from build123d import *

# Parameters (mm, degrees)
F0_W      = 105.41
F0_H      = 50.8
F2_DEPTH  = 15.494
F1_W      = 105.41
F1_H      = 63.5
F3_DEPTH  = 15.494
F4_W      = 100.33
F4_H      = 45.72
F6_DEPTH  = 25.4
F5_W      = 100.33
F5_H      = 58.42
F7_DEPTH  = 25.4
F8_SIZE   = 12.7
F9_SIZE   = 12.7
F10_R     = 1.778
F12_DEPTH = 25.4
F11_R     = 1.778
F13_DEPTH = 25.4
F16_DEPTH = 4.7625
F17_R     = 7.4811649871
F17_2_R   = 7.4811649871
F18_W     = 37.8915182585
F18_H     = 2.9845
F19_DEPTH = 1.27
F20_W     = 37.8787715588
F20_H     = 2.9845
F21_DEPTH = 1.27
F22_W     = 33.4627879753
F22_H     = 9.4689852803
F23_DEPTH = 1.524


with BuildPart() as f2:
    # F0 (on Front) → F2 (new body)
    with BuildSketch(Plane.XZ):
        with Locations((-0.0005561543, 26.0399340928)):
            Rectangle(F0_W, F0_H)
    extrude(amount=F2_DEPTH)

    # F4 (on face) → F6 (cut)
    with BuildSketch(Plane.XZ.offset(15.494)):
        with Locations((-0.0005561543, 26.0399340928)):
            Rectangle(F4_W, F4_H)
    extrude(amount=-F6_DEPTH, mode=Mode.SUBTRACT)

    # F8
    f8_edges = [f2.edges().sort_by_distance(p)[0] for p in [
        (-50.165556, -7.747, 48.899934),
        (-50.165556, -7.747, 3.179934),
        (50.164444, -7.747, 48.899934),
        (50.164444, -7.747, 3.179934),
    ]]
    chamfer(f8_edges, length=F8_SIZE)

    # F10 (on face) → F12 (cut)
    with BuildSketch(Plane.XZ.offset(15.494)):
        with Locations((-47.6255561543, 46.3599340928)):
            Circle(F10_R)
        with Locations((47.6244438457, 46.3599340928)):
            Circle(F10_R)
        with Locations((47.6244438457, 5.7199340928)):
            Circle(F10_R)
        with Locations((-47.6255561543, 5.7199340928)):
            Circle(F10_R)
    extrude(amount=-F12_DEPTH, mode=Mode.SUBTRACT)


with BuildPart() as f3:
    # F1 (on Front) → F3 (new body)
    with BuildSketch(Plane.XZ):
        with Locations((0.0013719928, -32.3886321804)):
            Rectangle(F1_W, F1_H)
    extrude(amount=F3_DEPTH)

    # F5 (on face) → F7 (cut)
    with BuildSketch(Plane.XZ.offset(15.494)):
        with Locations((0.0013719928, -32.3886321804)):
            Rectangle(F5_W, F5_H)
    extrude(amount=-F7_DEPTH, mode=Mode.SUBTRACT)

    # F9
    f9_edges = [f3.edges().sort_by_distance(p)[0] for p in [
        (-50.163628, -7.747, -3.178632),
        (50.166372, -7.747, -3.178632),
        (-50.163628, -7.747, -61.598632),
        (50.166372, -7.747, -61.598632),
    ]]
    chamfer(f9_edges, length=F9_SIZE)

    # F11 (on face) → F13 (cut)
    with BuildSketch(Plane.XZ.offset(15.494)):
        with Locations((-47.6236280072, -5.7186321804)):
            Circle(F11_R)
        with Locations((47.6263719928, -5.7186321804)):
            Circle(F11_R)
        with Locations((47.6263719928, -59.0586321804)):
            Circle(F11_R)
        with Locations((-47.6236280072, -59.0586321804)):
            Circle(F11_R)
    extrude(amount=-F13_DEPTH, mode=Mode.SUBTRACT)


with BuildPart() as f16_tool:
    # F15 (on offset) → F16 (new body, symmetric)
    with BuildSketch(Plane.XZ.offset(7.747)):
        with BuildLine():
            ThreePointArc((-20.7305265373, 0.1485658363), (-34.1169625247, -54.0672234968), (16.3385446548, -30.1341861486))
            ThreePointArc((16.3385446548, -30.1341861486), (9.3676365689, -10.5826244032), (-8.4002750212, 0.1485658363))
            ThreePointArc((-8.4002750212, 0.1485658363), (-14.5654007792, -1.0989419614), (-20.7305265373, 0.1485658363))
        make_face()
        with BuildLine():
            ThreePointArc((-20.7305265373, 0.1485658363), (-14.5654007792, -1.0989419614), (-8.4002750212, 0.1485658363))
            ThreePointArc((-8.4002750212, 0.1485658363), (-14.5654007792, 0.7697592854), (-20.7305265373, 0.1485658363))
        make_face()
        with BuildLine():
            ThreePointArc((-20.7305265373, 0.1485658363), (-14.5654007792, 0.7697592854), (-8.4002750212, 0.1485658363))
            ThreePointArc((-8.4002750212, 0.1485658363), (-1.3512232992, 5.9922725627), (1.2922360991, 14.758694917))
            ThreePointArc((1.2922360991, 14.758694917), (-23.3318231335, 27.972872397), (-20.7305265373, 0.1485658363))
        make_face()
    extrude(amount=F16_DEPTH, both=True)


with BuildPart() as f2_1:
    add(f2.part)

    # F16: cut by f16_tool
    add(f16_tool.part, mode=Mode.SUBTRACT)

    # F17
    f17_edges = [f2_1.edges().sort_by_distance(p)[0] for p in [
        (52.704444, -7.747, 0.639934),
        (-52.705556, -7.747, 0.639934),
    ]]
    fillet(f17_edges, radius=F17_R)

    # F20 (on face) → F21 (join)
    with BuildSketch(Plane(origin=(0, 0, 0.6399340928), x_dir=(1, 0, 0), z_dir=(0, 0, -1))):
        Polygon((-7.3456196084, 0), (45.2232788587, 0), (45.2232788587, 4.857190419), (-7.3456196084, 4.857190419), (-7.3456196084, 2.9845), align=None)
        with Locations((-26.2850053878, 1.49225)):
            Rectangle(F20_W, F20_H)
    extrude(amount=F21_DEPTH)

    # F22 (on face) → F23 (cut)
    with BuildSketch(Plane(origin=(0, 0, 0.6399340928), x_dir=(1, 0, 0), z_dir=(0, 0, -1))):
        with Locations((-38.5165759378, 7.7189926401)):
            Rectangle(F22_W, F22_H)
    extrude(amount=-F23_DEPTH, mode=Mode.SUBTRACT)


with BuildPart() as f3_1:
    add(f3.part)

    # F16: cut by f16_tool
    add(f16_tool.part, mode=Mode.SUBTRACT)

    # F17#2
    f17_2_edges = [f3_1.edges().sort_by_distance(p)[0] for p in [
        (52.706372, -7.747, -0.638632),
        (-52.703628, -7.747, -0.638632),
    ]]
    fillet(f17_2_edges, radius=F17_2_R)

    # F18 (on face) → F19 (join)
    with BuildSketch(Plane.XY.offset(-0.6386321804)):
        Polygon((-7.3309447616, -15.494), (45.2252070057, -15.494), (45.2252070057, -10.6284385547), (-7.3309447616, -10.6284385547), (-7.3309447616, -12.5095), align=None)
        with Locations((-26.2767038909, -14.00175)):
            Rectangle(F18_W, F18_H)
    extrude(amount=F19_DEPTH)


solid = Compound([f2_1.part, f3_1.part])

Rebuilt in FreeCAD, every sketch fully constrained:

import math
import FreeCAD as App
import Part
import Sketcher

V = App.Vector
Q = App.Units.Quantity


def edges_at(feature, points):
    """Names of the edges that pass closest to the given points."""
    edges = feature.Shape.Edges
    near = lambda p: min(range(len(edges)), key=lambda i: edges[i].distToShape(Part.Vertex(*p))[0])
    return sorted({f"Edge{near(p) + 1}" for p in points})


def add_polygon(sketch, points):
    """Adds a closed chain of lines whose ends are joined by coincident constraints."""
    first, n = sketch.GeometryCount, len(points)
    for a, b in zip(points, points[1:] + points[:1]):
        sketch.addGeometry(Part.LineSegment(App.Vector(*a, 0), App.Vector(*b, 0)), False)
    for i in range(n):
        sketch.addConstraint(Sketcher.Constraint("Coincident", first + i, 2, first + (i + 1) % n, 1))

doc = App.newDocument("Part")
params = doc.addObject("Spreadsheet::Sheet", "Params")
for row, (alias, value) in enumerate([
    ("sketch1_height", "2 in"),
    ("sketch1_width", "4.15 in"),
    ("pad1_length", "0.61 in"),
    ("sketch2_height", "1.8 in"),
    ("sketch2_width", "3.95 in"),
    ("pocket1_length", "1 in"),
    ("chamfer_size", "0.5 in"),
    ("sketch3_diameter", "0.14 in"),
    ("pocket2_length", "1 in"),
    ("sketch4_height", "2.5 in"),
    ("sketch4_width", "4.15 in"),
    ("pad2_length", "0.61 in"),
    ("sketch5_height", "2.3 in"),
    ("sketch5_width", "3.95 in"),
    ("pocket3_length", "1 in"),
    ("chamfer2_size", "0.5 in"),
    ("sketch6_diameter", "0.14 in"),
    ("pocket4_length", "1 in"),
    ("pad3_length", "0.375 in"),
    ("fillet_radius", "7.481165 mm"),
    ("pad4_length", "0.05 in"),
    ("pocket5_length", "0.06 in"),
    ("fillet2_radius", "7.481165 mm"),
    ("pad5_length", "0.05 in"),
], start=1):
    params.set(f"A{row}", alias)
    params.set(f"B{row}", "=" + value)
    params.setAlias(f"B{row}", alias)

body = doc.addObject("PartDesign::Body", "Body")

# Sketch on XZ plane
sketch1 = body.newObject("Sketcher::SketchObject", "Sketch")
sketch1.AttachmentSupport = (doc.getObject("XZ_Plane"), [""])
sketch1.MapMode = "FlatFace"
add_polygon(sketch1, [(-53, 51), (-53, 1), (53, 1), (53, 51)])  # lines 0-3
sketch1.addConstraint(Sketcher.Constraint("Vertical", 0))
sketch1.addConstraint(Sketcher.Constraint("Horizontal", 1))
sketch1.addConstraint(Sketcher.Constraint("Vertical", 2))
sketch1.addConstraint(Sketcher.Constraint("Horizontal", 3))
sketch1.addConstraint(Sketcher.Constraint("DistanceY", 0, 2, 0, 1, Q("2 in")))
sketch1.addConstraint(Sketcher.Constraint("DistanceX", 1, 1, 1, 2, Q("4.15 in")))
sketch1.addConstraint(Sketcher.Constraint("DistanceX", 0, 2, -1, 1, Q("52.705556 mm")))
sketch1.addConstraint(Sketcher.Constraint("DistanceY", -1, 1, 0, 2, Q("0.639934 mm")))
sketch1.setExpression("Constraints[8]", "Params.sketch1_height")
sketch1.setExpression("Constraints[9]", "Params.sketch1_width")
pad1 = body.newObject("PartDesign::Pad", "Pad")
pad1.Profile = sketch1
pad1.setExpression("Length", "Params.pad1_length")

# Sketch on XZ plane
sketch2 = body.newObject("Sketcher::SketchObject", "Sketch001")
sketch2.AttachmentSupport = (doc.getObject("XZ_Plane"), [""])
sketch2.MapMode = "FlatFace"
sketch2.AttachmentOffset = App.Placement(V(0, 0, 0.61 * 25.4), App.Rotation())
add_polygon(sketch2, [(-50, 49), (-50, 3), (50, 3), (50, 49)])  # lines 0-3
sketch2.addConstraint(Sketcher.Constraint("Vertical", 0))
sketch2.addConstraint(Sketcher.Constraint("Horizontal", 1))
sketch2.addConstraint(Sketcher.Constraint("Vertical", 2))
sketch2.addConstraint(Sketcher.Constraint("Horizontal", 3))
sketch2.addConstraint(Sketcher.Constraint("DistanceY", 0, 2, 0, 1, Q("1.8 in")))
sketch2.addConstraint(Sketcher.Constraint("DistanceX", 1, 1, 1, 2, Q("3.95 in")))
sketch2.addConstraint(Sketcher.Constraint("DistanceX", 0, 2, -1, 1, Q("50.165556 mm")))
sketch2.addConstraint(Sketcher.Constraint("DistanceY", -1, 1, 0, 2, Q("3.179934 mm")))
sketch2.setExpression("Constraints[8]", "Params.sketch2_height")
sketch2.setExpression("Constraints[9]", "Params.sketch2_width")
pocket1 = body.newObject("PartDesign::Pocket", "Pocket")
pocket1.Profile = sketch2
pocket1.setExpression("Length", "Params.pocket1_length")
doc.recompute()

chamfer = body.newObject("PartDesign::Chamfer", "Chamfer")
chamfer.Base = (pocket1, edges_at(pocket1, [
    (-50.166, -7.747, 48.9),
    (-50.166, -7.747, 3.18),
    (50.164, -7.747, 48.9),
    (50.164, -7.747, 3.18),
]))
chamfer.setExpression("Size", "Params.chamfer_size")

# Sketch on XZ plane
sketch3 = body.newObject("Sketcher::SketchObject", "Sketch002")
sketch3.AttachmentSupport = (doc.getObject("XZ_Plane"), [""])
sketch3.MapMode = "FlatFace"
sketch3.AttachmentOffset = App.Placement(V(0, 0, 0.61 * 25.4), App.Rotation())
sketch3.addGeometry(Part.Circle(V(-47.6, 46.4, 0), V(0, 0, 1), 1.8), False)
sketch3.addGeometry(Part.Circle(V(47.6, 46.4, 0), V(0, 0, 1), 1.8), False)
sketch3.addGeometry(Part.Circle(V(47.6, 5.7, 0), V(0, 0, 1), 1.8), False)
sketch3.addGeometry(Part.Circle(V(-47.6, 5.7, 0), V(0, 0, 1), 1.8), False)
sketch3.addConstraint(Sketcher.Constraint("Equal", 0, 1))
sketch3.addConstraint(Sketcher.Constraint("Equal", 1, 2))
sketch3.addConstraint(Sketcher.Constraint("Equal", 2, 3))
sketch3.addConstraint(Sketcher.Constraint("Horizontal", 0, 3, 1, 3))
sketch3.addConstraint(Sketcher.Constraint("Horizontal", 2, 3, 3, 3))
sketch3.addConstraint(Sketcher.Constraint("Vertical", 1, 3, 2, 3))
sketch3.addConstraint(Sketcher.Constraint("Vertical", 0, 3, 3, 3))
sketch3.addConstraint(Sketcher.Constraint("Diameter", 0, Q("0.14 in")))
sketch3.addConstraint(Sketcher.Constraint("DistanceY", 2, 3, 1, 3, Q("1.6 in")))
sketch3.addConstraint(Sketcher.Constraint("DistanceX", 0, 3, 1, 3, Q("3.75 in")))
sketch3.addConstraint(Sketcher.Constraint("DistanceX", 0, 3, -1, 1, Q("47.625556 mm")))
sketch3.addConstraint(Sketcher.Constraint("DistanceY", -1, 1, 0, 3, Q("46.359934 mm")))
sketch3.setExpression("Constraints[7]", "Params.sketch3_diameter")
pocket2 = body.newObject("PartDesign::Pocket", "Pocket001")
pocket2.Profile = sketch3
pocket2.setExpression("Length", "Params.pocket2_length")
body2 = doc.addObject("PartDesign::Body", "Body001")

# Sketch on XZ plane
sketch4 = body2.newObject("Sketcher::SketchObject", "Sketch003")
sketch4.AttachmentSupport = (doc.getObject("XZ_Plane001"), [""])
sketch4.MapMode = "FlatFace"
add_polygon(sketch4, [(-53, -1), (-53, -64), (53, -64), (53, -1)])  # lines 0-3
sketch4.addConstraint(Sketcher.Constraint("Vertical", 0))
sketch4.addConstraint(Sketcher.Constraint("Horizontal", 1))
sketch4.addConstraint(Sketcher.Constraint("Vertical", 2))
sketch4.addConstraint(Sketcher.Constraint("Horizontal", 3))
sketch4.addConstraint(Sketcher.Constraint("DistanceY", 0, 2, 0, 1, Q("2.5 in")))
sketch4.addConstraint(Sketcher.Constraint("DistanceX", 1, 1, 1, 2, Q("4.15 in")))
sketch4.addConstraint(Sketcher.Constraint("DistanceX", 0, 2, -1, 1, Q("52.703628 mm")))
sketch4.addConstraint(Sketcher.Constraint("DistanceY", 0, 2, -1, 1, Q("64.138632 mm")))
sketch4.setExpression("Constraints[8]", "Params.sketch4_height")
sketch4.setExpression("Constraints[9]", "Params.sketch4_width")
pad2 = body2.newObject("PartDesign::Pad", "Pad001")
pad2.Profile = sketch4
pad2.setExpression("Length", "Params.pad2_length")

# Sketch on XZ plane
sketch5 = body2.newObject("Sketcher::SketchObject", "Sketch004")
sketch5.AttachmentSupport = (doc.getObject("XZ_Plane001"), [""])
sketch5.MapMode = "FlatFace"
sketch5.AttachmentOffset = App.Placement(V(0, 0, 0.61 * 25.4), App.Rotation())
add_polygon(sketch5, [(-50, -3), (-50, -62), (50, -62), (50, -3)])  # lines 0-3
sketch5.addConstraint(Sketcher.Constraint("Vertical", 0))
sketch5.addConstraint(Sketcher.Constraint("Horizontal", 1))
sketch5.addConstraint(Sketcher.Constraint("Vertical", 2))
sketch5.addConstraint(Sketcher.Constraint("Horizontal", 3))
sketch5.addConstraint(Sketcher.Constraint("DistanceY", 0, 2, 0, 1, Q("2.3 in")))
sketch5.addConstraint(Sketcher.Constraint("DistanceX", 1, 1, 1, 2, Q("3.95 in")))
sketch5.addConstraint(Sketcher.Constraint("DistanceX", 0, 2, -1, 1, Q("50.163628 mm")))
sketch5.addConstraint(Sketcher.Constraint("DistanceY", 0, 2, -1, 1, Q("61.598632 mm")))
sketch5.setExpression("Constraints[8]", "Params.sketch5_height")
sketch5.setExpression("Constraints[9]", "Params.sketch5_width")
pocket3 = body2.newObject("PartDesign::Pocket", "Pocket002")
pocket3.Profile = sketch5
pocket3.setExpression("Length", "Params.pocket3_length")
doc.recompute()

chamfer2 = body2.newObject("PartDesign::Chamfer", "Chamfer001")
chamfer2.Base = (pocket3, edges_at(pocket3, [
    (-50.164, -7.747, -3.179),
    (50.166, -7.747, -3.179),
    (-50.164, -7.747, -61.599),
    (50.166, -7.747, -61.599),
]))
chamfer2.setExpression("Size", "Params.chamfer2_size")

# Sketch on XZ plane
sketch6 = body2.newObject("Sketcher::SketchObject", "Sketch005")
sketch6.AttachmentSupport = (doc.getObject("XZ_Plane001"), [""])
sketch6.MapMode = "FlatFace"
sketch6.AttachmentOffset = App.Placement(V(0, 0, 0.61 * 25.4), App.Rotation())
sketch6.addGeometry(Part.Circle(V(-47.6, -5.7, 0), V(0, 0, 1), 1.8), False)
sketch6.addGeometry(Part.Circle(V(47.6, -5.7, 0), V(0, 0, 1), 1.8), False)
sketch6.addGeometry(Part.Circle(V(47.6, -59.1, 0), V(0, 0, 1), 1.8), False)
sketch6.addGeometry(Part.Circle(V(-47.6, -59.1, 0), V(0, 0, 1), 1.8), False)
sketch6.addConstraint(Sketcher.Constraint("Equal", 0, 1))
sketch6.addConstraint(Sketcher.Constraint("Equal", 1, 2))
sketch6.addConstraint(Sketcher.Constraint("Equal", 2, 3))
sketch6.addConstraint(Sketcher.Constraint("Horizontal", 0, 3, 1, 3))
sketch6.addConstraint(Sketcher.Constraint("Horizontal", 2, 3, 3, 3))
sketch6.addConstraint(Sketcher.Constraint("Vertical", 1, 3, 2, 3))
sketch6.addConstraint(Sketcher.Constraint("Vertical", 0, 3, 3, 3))
sketch6.addConstraint(Sketcher.Constraint("Diameter", 0, Q("0.14 in")))
sketch6.addConstraint(Sketcher.Constraint("DistanceY", 2, 3, 1, 3, Q("2.1 in")))
sketch6.addConstraint(Sketcher.Constraint("DistanceX", 0, 3, 1, 3, Q("3.75 in")))
sketch6.addConstraint(Sketcher.Constraint("DistanceX", 0, 3, -1, 1, Q("47.623628 mm")))
sketch6.addConstraint(Sketcher.Constraint("DistanceY", 0, 3, -1, 1, Q("5.718632 mm")))
sketch6.setExpression("Constraints[7]", "Params.sketch6_diameter")
pocket4 = body2.newObject("PartDesign::Pocket", "Pocket003")
pocket4.Profile = sketch6
pocket4.setExpression("Length", "Params.pocket4_length")
body3 = doc.addObject("PartDesign::Body", "Body002")

# Sketch on XZ plane
sketch7 = body3.newObject("Sketcher::SketchObject", "Sketch006")
sketch7.AttachmentSupport = (doc.getObject("XZ_Plane002"), [""])
sketch7.MapMode = "FlatFace"
sketch7.AttachmentOffset = App.Placement(V(0, 0, 0.305 * 25.4), App.Rotation())
sketch7.addGeometry(Part.ArcOfCircle(Part.Circle(V(-15, -30, 0), V(0, 0, 1), 31), math.radians(102), math.radians(360)), False)
sketch7.addGeometry(Part.ArcOfCircle(Part.Circle(V(-15, -30, 0), V(0, 0, 1), 31), math.radians(0), math.radians(78)), False)
sketch7.addGeometry(Part.ArcOfCircle(Part.Circle(V(-15, 15, 0), V(0, 0, 1), 16), math.radians(-67), math.radians(0)), False)
sketch7.addGeometry(Part.ArcOfCircle(Part.Circle(V(-15, 15, 0), V(0, 0, 1), 16), math.radians(0), math.radians(247)), False)
sketch7.addConstraint(Sketcher.Constraint("Tangent", 0, 2, 1, 1))
sketch7.addConstraint(Sketcher.Constraint("Coincident", 1, 2, 2, 1))
sketch7.addConstraint(Sketcher.Constraint("Tangent", 2, 2, 3, 1))
sketch7.addConstraint(Sketcher.Constraint("Coincident", 3, 2, 0, 1))
sketch7.addConstraint(Sketcher.Constraint("Equal", 0, 1))
sketch7.addConstraint(Sketcher.Constraint("Equal", 2, 3))
sketch7.addConstraint(Sketcher.Constraint("Horizontal", 1, 3, 0, 2))
sketch7.addConstraint(Sketcher.Constraint("Horizontal", 3, 3, 2, 2))
sketch7.addConstraint(Sketcher.Constraint("Horizontal", 1, 2, 3, 2))
sketch7.addConstraint(Sketcher.Constraint("Radius", 0, Q("30.903945 mm")))
sketch7.addConstraint(Sketcher.Constraint("Radius", 2, Q("15.857637 mm")))
sketch7.addConstraint(Sketcher.Constraint("DistanceX", 0, 3, -1, 1, Q("14.565401 mm")))
sketch7.addConstraint(Sketcher.Constraint("DistanceY", 0, 3, 2, 3, Q("44.892881 mm")))
sketch7.addConstraint(Sketcher.Constraint("DistanceY", 0, 3, -1, 1, Q("30.134186 mm")))
pad3 = body3.newObject("PartDesign::Pad", "Pad002")
pad3.Profile = sketch7
pad3.setExpression("Length", "Params.pad3_length")
pad3.Midplane = True
doc.recompute()

body4 = doc.addObject("PartDesign::Body", "Body003")
body4.BaseFeature = body3
boolean = body.newObject("PartDesign::Boolean", "Boolean")
boolean.Type = "Cut"
boolean.addObjects([body4])
doc.recompute()

fillet = body.newObject("PartDesign::Fillet", "Fillet")
fillet.Base = (boolean, edges_at(boolean, [(52.704, -7.747, 0.64), (-52.706, -7.747, 0.64)]))
fillet.setExpression("Radius", "Params.fillet_radius")

# Sketch on XY plane
sketch8 = body.newObject("Sketcher::SketchObject", "Sketch007")
sketch8.AttachmentSupport = (doc.getObject("XY_Plane"), [""])
sketch8.MapMode = "FlatFace"
sketch8.AttachmentOffset = App.Placement(V(0, 0, 0.639934), App.Rotation())
add_polygon(sketch8, [(45.2, 0), (45.2, -4.9), (-7.3, -4.9), (-7.3, -3), (-45.2, -3), (-45.2, 0)])  # lines 0-5
sketch8.addConstraint(Sketcher.Constraint("Vertical", 0))
sketch8.addConstraint(Sketcher.Constraint("Horizontal", 1))
sketch8.addConstraint(Sketcher.Constraint("Vertical", 2))
sketch8.addConstraint(Sketcher.Constraint("Horizontal", 3))
sketch8.addConstraint(Sketcher.Constraint("Vertical", 4))
sketch8.addConstraint(Sketcher.Constraint("Horizontal", 5))
sketch8.addConstraint(Sketcher.Constraint("PointOnObject", 4, 2, -1))
sketch8.addConstraint(Sketcher.Constraint("DistanceY", 4, 1, 4, 2, Q("0.1175 in")))
sketch8.addConstraint(Sketcher.Constraint("DistanceX", 1, 2, 1, 1, Q("52.568898 mm")))
sketch8.addConstraint(Sketcher.Constraint("DistanceX", 3, 2, 3, 1, Q("37.878772 mm")))
sketch8.addConstraint(Sketcher.Constraint("DistanceY", 0, 2, 0, 1, Q("4.85719 mm")))
sketch8.addConstraint(Sketcher.Constraint("DistanceX", -1, 1, 0, 2, Q("45.223279 mm")))
pad4 = body.newObject("PartDesign::Pad", "Pad003")
pad4.Profile = sketch8
pad4.setExpression("Length", "Params.pad4_length")
pad4.Reversed = True

# Sketch on XY plane
sketch9 = body.newObject("Sketcher::SketchObject", "Sketch008")
sketch9.AttachmentSupport = (doc.getObject("XY_Plane"), [""])
sketch9.MapMode = "FlatFace"
sketch9.AttachmentOffset = App.Placement(V(0, 0, 0.639934), App.Rotation())
add_polygon(sketch9, [(-55, -12), (-55, -3), (-22, -3), (-22, -12)])  # lines 0-3
sketch9.addConstraint(Sketcher.Constraint("Vertical", 0))
sketch9.addConstraint(Sketcher.Constraint("Horizontal", 1))
sketch9.addConstraint(Sketcher.Constraint("Vertical", 2))
sketch9.addConstraint(Sketcher.Constraint("Horizontal", 3))
sketch9.addConstraint(Sketcher.Constraint("DistanceY", 0, 2, -1, 1, Q("0.1175 in")))
sketch9.addConstraint(Sketcher.Constraint("DistanceX", 1, 1, 1, 2, Q("33.462788 mm")))
sketch9.addConstraint(Sketcher.Constraint("DistanceY", 0, 1, 0, 2, Q("9.468985 mm")))
sketch9.addConstraint(Sketcher.Constraint("DistanceX", 0, 2, -1, 1, Q("55.24797 mm")))
pocket5 = body.newObject("PartDesign::Pocket", "Pocket004")
pocket5.Profile = sketch9
pocket5.setExpression("Length", "Params.pocket5_length")
pocket5.Reversed = True
doc.recompute()

boolean2 = body2.newObject("PartDesign::Boolean", "Boolean001")
boolean2.Type = "Cut"
boolean2.addObjects([body3])
doc.recompute()

fillet2 = body2.newObject("PartDesign::Fillet", "Fillet001")
fillet2.Base = (boolean2, edges_at(boolean2, [(52.706, -7.747, -0.639), (-52.704, -7.747, -0.639)]))
fillet2.setExpression("Radius", "Params.fillet2_radius")

# Sketch on XY plane
sketch10 = body2.newObject("Sketcher::SketchObject", "Sketch009")
sketch10.AttachmentSupport = (doc.getObject("XY_Plane001"), [""])
sketch10.MapMode = "FlatFace"
sketch10.AttachmentOffset = App.Placement(V(0, 0, -0.638632), App.Rotation())
add_polygon(sketch10, [(45.2, -15.5), (45.2, -10.6), (-7.3, -10.6), (-7.3, -12.5), (-45.2, -12.5), (-45.2, -15.5)])  # lines 0-5
sketch10.addConstraint(Sketcher.Constraint("Vertical", 0))
sketch10.addConstraint(Sketcher.Constraint("Horizontal", 1))
sketch10.addConstraint(Sketcher.Constraint("Vertical", 2))
sketch10.addConstraint(Sketcher.Constraint("Horizontal", 3))
sketch10.addConstraint(Sketcher.Constraint("Vertical", 4))
sketch10.addConstraint(Sketcher.Constraint("Horizontal", 5))
sketch10.addConstraint(Sketcher.Constraint("DistanceY", 4, 2, -1, 1, Q("0.61 in")))
sketch10.addConstraint(Sketcher.Constraint("DistanceY", 4, 2, 4, 1, Q("0.1175 in")))
sketch10.addConstraint(Sketcher.Constraint("DistanceX", 1, 2, 1, 1, Q("52.556152 mm")))
sketch10.addConstraint(Sketcher.Constraint("DistanceX", 3, 2, 3, 1, Q("37.891518 mm")))
sketch10.addConstraint(Sketcher.Constraint("DistanceY", 0, 1, 0, 2, Q("4.865561 mm")))
sketch10.addConstraint(Sketcher.Constraint("DistanceX", -1, 1, 0, 2, Q("45.225207 mm")))
pad5 = body2.newObject("PartDesign::Pad", "Pad004")
pad5.Profile = sketch10
pad5.setExpression("Length", "Params.pad5_length")

doc.recompute()
